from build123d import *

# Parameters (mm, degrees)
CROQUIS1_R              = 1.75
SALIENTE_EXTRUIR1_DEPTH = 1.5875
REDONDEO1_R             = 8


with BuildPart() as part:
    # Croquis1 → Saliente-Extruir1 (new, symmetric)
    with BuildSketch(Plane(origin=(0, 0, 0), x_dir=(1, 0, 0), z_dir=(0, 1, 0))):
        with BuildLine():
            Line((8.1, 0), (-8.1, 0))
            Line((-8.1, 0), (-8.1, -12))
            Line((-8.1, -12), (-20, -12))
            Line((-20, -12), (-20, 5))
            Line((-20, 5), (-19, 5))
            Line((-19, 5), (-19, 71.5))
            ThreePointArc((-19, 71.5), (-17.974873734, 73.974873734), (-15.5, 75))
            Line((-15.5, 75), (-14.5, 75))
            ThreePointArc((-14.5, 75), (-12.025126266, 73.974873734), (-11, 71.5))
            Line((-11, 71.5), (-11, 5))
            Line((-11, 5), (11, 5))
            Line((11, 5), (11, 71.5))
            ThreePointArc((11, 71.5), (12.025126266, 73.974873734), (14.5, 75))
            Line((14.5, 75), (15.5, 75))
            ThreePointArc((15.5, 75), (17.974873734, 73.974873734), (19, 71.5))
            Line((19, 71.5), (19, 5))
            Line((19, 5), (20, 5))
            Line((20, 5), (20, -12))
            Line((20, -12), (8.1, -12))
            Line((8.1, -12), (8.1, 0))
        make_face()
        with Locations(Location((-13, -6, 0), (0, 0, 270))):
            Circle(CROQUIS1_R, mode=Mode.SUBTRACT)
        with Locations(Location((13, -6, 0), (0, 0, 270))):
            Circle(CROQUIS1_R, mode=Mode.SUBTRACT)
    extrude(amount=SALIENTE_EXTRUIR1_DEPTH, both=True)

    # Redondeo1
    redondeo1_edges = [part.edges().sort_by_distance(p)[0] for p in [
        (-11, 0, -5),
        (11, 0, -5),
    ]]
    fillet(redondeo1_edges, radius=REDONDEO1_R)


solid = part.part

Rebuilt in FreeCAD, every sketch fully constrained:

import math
import FreeCAD as App
import Part
import Sketcher

V = App.Vector
Q = App.Units.Quantity


def edges_at(feature, points):
    """Names of the edges that pass closest to the given points."""
    edges = feature.Shape.Edges
    near = lambda p: min(range(len(edges)), key=lambda i: edges[i].distToShape(Part.Vertex(*p))[0])
    return sorted({f"Edge{near(p) + 1}" for p in points})

doc = App.newDocument("Part")
params = doc.addObject("Spreadsheet::Sheet", "Params")
for row, (alias, value) in enumerate([
    ("sketch1_diameter", "3.5 mm"),
    ("sketch1_radius", "3.5 mm"),
    ("sketch1_width", "1 mm"),
    ("sketch1_width2", "22 mm"),
    ("sketch1_height", "12 mm"),
    ("pad1_length", "3.175 mm"),
    ("fillet_radius", "8 mm"),
], start=1):
    params.set(f"A{row}", alias)
    params.set(f"B{row}", "=" + value)
    params.setAlias(f"B{row}", alias)

body = doc.addObject("PartDesign::Body", "Body")

sketch1 = body.newObject("Sketcher::SketchObject", "Sketch")
sketch1.AttachmentSupport = (doc.getObject("XZ_Plane"), [""])
sketch1.MapMode = "FlatFace"
sketch1.addGeometry([
    Part.LineSegment(V(-8.1, 0, 0), V(8.1, 0, 0)),
    Part.LineSegment(V(8.1, 0, 0), V(8.1, 12, 0)),
    Part.LineSegment(V(8.1, 12, 0), V(20, 12, 0)),
    Part.LineSegment(V(20, 12, 0), V(20, -5, 0)),
    Part.LineSegment(V(20, -5, 0), V(19, -5, 0)),
    Part.LineSegment(V(19, -5, 0), V(19, -71.5, 0)),
    Part.ArcOfCircle(Part.Circle(V(15.5, -71.5, 0), V(0, 0, 1), 3.5), math.radians(-90), math.radians(0)),
    Part.LineSegment(V(15.5, -75, 0), V(14.5, -75, 0)),
    Part.ArcOfCircle(Part.Circle(V(14.5, -71.5, 0), V(0, 0, 1), 3.5), math.radians(-180), math.radians(-90)),
    Part.LineSegment(V(11, -71.5, 0), V(11, -5, 0)),
    Part.LineSegment(V(11, -5, 0), V(-11, -5, 0)),
    Part.LineSegment(V(-11, -5, 0), V(-11, -71.5, 0)),
    Part.ArcOfCircle(Part.Circle(V(-14.5, -71.5, 0), V(0, 0, 1), 3.5), math.radians(-90), math.radians(0)),
    Part.LineSegment(V(-14.5, -75, 0), V(-15.5, -75, 0)),
    Part.ArcOfCircle(Part.Circle(V(-15.5, -71.5, 0), V(0, 0, 1), 3.5), math.radians(-180), math.radians(-90)),
    Part.LineSegment(V(-19, -71.5, 0), V(-19, -5, 0)),
    Part.LineSegment(V(-19, -5, 0), V(-20, -5, 0)),
    Part.LineSegment(V(-20, -5, 0), V(-20, 12, 0)),
    Part.LineSegment(V(-20, 12, 0), V(-8.1, 12, 0)),
    Part.LineSegment(V(-8.1, 12, 0), V(-8.1, 0, 0)),
    Part.Circle(V(13, 6, 0), V(0, 0, 1), 1.8),
    Part.Circle(V(-13, 6, 0), V(0, 0, 1), 1.8),
], False)
sketch1.addConstraint([
    Sketcher.Constraint("Coincident", 0, 2, 1, 1),
    Sketcher.Constraint("Coincident", 1, 2, 2, 1),
    Sketcher.Constraint("Coincident", 2, 2, 3, 1),
    Sketcher.Constraint("Coincident", 3, 2, 4, 1),
    Sketcher.Constraint("Coincident", 4, 2, 5, 1),
    Sketcher.Constraint("Tangent", 5, 2, 6, 2),
    Sketcher.Constraint("Tangent", 6, 1, 7, 1),
    Sketcher.Constraint("Tangent", 7, 2, 8, 2),
    Sketcher.Constraint("Tangent", 8, 1, 9, 1),
    Sketcher.Constraint("Coincident", 9, 2, 10, 1),
    Sketcher.Constraint("Coincident", 10, 2, 11, 1),
    Sketcher.Constraint("Tangent", 11, 2, 12, 2),
    Sketcher.Constraint("Tangent", 12, 1, 13, 1),
    Sketcher.Constraint("Tangent", 13, 2, 14, 2),
    Sketcher.Constraint("Tangent", 14, 1, 15, 1),
    Sketcher.Constraint("Coincident", 15, 2, 16, 1),
    Sketcher.Constraint("Coincident", 16, 2, 17, 1),
    Sketcher.Constraint("Coincident", 17, 2, 18, 1),
    Sketcher.Constraint("Coincident", 18, 2, 19, 1),
    Sketcher.Constraint("Coincident", 19, 2, 0, 1),
    Sketcher.Constraint("Horizontal", 0),
    Sketcher.Constraint("Vertical", 1),
    Sketcher.Constraint("Horizontal", 2),
    Sketcher.Constraint("Vertical", 3),
    Sketcher.Constraint("Horizontal", 4),
    Sketcher.Constraint("Vertical", 5),
    Sketcher.Constraint("Horizontal", 7),
    Sketcher.Constraint("Vertical", 9),
    Sketcher.Constraint("Horizontal", 10),
    Sketcher.Constraint("Vertical", 11),
    Sketcher.Constraint("Horizontal", 13),
    Sketcher.Constraint("Vertical", 15),
    Sketcher.Constraint("Horizontal", 16),
    Sketcher.Constraint("Vertical", 17),
    Sketcher.Constraint("Horizontal", 18),
    Sketcher.Constraint("Vertical", 19),
    Sketcher.Constraint("Equal", 6, 8),
    Sketcher.Constraint("Equal", 8, 12),
    Sketcher.Constraint("Equal", 12, 14),
    Sketcher.Constraint("Equal", 20, 21),
    Sketcher.Constraint("Symmetric", 0, 2, 19, 2, -1, 1),
    Sketcher.Constraint("Symmetric", 8, 3, 12, 3, -2),
    Sketcher.Constraint("Symmetric", 20, 3, 21, 3, -2),
    Sketcher.Constraint("Symmetric", 4, 2, 15, 2, -2),
    Sketcher.Constraint("Symmetric", 2, 2, 17, 2, -2),
    Sketcher.Constraint("Horizontal", 4, 2, 9, 2),
    Sketcher.Constraint("Equal", 4, 7),
    Sketcher.Constraint("Diameter", 20, Q("3.5 mm")),
    Sketcher.Constraint("Radius", 6, Q("3.5 mm")),
    Sketcher.Constraint("DistanceX", 4, 2, 4, 1, Q("1 mm")),
    Sketcher.Constraint("DistanceX", 10, 2, 10, 1, Q("22 mm")),
    Sketcher.Constraint("DistanceY", 1, 1, 1, 2, Q("12 mm")),
    Sketcher.Constraint("DistanceY", 3, 2, 3, 1, Q("17 mm")),
    Sketcher.Constraint("DistanceX", 0, 1, 0, 2, Q("16.2 mm")),
    Sketcher.Constraint("DistanceY", 5, 2, 5, 1, Q("66.5 mm")),
    Sketcher.Constraint("DistanceX", -1, 1, 20, 3, Q("13 mm")),
    Sketcher.Constraint("DistanceY", -1, 1, 20, 3, Q("6 mm")),
])
sketch1.setExpression("Constraints[47]", "Params.sketch1_diameter")
sketch1.setExpression("Constraints[48]", "Params.sketch1_radius")
sketch1.setExpression("Constraints[49]", "Params.sketch1_width")
sketch1.setExpression("Constraints[50]", "Params.sketch1_width2")
sketch1.setExpression("Constraints[51]", "Params.sketch1_height")
pad1 = body.newObject("PartDesign::Pad", "Pad")
pad1.Profile = sketch1
pad1.setExpression("Length", "Params.pad1_length")
pad1.Midplane = True
doc.recompute()

fillet = body.newObject("PartDesign::Fillet", "Fillet")
fillet.Base = (pad1, edges_at(pad1, [(-11, 0, -5), (11, 0, -5)]))
fillet.setExpression("Radius", "Params.fillet_radius")

doc.recompute()
